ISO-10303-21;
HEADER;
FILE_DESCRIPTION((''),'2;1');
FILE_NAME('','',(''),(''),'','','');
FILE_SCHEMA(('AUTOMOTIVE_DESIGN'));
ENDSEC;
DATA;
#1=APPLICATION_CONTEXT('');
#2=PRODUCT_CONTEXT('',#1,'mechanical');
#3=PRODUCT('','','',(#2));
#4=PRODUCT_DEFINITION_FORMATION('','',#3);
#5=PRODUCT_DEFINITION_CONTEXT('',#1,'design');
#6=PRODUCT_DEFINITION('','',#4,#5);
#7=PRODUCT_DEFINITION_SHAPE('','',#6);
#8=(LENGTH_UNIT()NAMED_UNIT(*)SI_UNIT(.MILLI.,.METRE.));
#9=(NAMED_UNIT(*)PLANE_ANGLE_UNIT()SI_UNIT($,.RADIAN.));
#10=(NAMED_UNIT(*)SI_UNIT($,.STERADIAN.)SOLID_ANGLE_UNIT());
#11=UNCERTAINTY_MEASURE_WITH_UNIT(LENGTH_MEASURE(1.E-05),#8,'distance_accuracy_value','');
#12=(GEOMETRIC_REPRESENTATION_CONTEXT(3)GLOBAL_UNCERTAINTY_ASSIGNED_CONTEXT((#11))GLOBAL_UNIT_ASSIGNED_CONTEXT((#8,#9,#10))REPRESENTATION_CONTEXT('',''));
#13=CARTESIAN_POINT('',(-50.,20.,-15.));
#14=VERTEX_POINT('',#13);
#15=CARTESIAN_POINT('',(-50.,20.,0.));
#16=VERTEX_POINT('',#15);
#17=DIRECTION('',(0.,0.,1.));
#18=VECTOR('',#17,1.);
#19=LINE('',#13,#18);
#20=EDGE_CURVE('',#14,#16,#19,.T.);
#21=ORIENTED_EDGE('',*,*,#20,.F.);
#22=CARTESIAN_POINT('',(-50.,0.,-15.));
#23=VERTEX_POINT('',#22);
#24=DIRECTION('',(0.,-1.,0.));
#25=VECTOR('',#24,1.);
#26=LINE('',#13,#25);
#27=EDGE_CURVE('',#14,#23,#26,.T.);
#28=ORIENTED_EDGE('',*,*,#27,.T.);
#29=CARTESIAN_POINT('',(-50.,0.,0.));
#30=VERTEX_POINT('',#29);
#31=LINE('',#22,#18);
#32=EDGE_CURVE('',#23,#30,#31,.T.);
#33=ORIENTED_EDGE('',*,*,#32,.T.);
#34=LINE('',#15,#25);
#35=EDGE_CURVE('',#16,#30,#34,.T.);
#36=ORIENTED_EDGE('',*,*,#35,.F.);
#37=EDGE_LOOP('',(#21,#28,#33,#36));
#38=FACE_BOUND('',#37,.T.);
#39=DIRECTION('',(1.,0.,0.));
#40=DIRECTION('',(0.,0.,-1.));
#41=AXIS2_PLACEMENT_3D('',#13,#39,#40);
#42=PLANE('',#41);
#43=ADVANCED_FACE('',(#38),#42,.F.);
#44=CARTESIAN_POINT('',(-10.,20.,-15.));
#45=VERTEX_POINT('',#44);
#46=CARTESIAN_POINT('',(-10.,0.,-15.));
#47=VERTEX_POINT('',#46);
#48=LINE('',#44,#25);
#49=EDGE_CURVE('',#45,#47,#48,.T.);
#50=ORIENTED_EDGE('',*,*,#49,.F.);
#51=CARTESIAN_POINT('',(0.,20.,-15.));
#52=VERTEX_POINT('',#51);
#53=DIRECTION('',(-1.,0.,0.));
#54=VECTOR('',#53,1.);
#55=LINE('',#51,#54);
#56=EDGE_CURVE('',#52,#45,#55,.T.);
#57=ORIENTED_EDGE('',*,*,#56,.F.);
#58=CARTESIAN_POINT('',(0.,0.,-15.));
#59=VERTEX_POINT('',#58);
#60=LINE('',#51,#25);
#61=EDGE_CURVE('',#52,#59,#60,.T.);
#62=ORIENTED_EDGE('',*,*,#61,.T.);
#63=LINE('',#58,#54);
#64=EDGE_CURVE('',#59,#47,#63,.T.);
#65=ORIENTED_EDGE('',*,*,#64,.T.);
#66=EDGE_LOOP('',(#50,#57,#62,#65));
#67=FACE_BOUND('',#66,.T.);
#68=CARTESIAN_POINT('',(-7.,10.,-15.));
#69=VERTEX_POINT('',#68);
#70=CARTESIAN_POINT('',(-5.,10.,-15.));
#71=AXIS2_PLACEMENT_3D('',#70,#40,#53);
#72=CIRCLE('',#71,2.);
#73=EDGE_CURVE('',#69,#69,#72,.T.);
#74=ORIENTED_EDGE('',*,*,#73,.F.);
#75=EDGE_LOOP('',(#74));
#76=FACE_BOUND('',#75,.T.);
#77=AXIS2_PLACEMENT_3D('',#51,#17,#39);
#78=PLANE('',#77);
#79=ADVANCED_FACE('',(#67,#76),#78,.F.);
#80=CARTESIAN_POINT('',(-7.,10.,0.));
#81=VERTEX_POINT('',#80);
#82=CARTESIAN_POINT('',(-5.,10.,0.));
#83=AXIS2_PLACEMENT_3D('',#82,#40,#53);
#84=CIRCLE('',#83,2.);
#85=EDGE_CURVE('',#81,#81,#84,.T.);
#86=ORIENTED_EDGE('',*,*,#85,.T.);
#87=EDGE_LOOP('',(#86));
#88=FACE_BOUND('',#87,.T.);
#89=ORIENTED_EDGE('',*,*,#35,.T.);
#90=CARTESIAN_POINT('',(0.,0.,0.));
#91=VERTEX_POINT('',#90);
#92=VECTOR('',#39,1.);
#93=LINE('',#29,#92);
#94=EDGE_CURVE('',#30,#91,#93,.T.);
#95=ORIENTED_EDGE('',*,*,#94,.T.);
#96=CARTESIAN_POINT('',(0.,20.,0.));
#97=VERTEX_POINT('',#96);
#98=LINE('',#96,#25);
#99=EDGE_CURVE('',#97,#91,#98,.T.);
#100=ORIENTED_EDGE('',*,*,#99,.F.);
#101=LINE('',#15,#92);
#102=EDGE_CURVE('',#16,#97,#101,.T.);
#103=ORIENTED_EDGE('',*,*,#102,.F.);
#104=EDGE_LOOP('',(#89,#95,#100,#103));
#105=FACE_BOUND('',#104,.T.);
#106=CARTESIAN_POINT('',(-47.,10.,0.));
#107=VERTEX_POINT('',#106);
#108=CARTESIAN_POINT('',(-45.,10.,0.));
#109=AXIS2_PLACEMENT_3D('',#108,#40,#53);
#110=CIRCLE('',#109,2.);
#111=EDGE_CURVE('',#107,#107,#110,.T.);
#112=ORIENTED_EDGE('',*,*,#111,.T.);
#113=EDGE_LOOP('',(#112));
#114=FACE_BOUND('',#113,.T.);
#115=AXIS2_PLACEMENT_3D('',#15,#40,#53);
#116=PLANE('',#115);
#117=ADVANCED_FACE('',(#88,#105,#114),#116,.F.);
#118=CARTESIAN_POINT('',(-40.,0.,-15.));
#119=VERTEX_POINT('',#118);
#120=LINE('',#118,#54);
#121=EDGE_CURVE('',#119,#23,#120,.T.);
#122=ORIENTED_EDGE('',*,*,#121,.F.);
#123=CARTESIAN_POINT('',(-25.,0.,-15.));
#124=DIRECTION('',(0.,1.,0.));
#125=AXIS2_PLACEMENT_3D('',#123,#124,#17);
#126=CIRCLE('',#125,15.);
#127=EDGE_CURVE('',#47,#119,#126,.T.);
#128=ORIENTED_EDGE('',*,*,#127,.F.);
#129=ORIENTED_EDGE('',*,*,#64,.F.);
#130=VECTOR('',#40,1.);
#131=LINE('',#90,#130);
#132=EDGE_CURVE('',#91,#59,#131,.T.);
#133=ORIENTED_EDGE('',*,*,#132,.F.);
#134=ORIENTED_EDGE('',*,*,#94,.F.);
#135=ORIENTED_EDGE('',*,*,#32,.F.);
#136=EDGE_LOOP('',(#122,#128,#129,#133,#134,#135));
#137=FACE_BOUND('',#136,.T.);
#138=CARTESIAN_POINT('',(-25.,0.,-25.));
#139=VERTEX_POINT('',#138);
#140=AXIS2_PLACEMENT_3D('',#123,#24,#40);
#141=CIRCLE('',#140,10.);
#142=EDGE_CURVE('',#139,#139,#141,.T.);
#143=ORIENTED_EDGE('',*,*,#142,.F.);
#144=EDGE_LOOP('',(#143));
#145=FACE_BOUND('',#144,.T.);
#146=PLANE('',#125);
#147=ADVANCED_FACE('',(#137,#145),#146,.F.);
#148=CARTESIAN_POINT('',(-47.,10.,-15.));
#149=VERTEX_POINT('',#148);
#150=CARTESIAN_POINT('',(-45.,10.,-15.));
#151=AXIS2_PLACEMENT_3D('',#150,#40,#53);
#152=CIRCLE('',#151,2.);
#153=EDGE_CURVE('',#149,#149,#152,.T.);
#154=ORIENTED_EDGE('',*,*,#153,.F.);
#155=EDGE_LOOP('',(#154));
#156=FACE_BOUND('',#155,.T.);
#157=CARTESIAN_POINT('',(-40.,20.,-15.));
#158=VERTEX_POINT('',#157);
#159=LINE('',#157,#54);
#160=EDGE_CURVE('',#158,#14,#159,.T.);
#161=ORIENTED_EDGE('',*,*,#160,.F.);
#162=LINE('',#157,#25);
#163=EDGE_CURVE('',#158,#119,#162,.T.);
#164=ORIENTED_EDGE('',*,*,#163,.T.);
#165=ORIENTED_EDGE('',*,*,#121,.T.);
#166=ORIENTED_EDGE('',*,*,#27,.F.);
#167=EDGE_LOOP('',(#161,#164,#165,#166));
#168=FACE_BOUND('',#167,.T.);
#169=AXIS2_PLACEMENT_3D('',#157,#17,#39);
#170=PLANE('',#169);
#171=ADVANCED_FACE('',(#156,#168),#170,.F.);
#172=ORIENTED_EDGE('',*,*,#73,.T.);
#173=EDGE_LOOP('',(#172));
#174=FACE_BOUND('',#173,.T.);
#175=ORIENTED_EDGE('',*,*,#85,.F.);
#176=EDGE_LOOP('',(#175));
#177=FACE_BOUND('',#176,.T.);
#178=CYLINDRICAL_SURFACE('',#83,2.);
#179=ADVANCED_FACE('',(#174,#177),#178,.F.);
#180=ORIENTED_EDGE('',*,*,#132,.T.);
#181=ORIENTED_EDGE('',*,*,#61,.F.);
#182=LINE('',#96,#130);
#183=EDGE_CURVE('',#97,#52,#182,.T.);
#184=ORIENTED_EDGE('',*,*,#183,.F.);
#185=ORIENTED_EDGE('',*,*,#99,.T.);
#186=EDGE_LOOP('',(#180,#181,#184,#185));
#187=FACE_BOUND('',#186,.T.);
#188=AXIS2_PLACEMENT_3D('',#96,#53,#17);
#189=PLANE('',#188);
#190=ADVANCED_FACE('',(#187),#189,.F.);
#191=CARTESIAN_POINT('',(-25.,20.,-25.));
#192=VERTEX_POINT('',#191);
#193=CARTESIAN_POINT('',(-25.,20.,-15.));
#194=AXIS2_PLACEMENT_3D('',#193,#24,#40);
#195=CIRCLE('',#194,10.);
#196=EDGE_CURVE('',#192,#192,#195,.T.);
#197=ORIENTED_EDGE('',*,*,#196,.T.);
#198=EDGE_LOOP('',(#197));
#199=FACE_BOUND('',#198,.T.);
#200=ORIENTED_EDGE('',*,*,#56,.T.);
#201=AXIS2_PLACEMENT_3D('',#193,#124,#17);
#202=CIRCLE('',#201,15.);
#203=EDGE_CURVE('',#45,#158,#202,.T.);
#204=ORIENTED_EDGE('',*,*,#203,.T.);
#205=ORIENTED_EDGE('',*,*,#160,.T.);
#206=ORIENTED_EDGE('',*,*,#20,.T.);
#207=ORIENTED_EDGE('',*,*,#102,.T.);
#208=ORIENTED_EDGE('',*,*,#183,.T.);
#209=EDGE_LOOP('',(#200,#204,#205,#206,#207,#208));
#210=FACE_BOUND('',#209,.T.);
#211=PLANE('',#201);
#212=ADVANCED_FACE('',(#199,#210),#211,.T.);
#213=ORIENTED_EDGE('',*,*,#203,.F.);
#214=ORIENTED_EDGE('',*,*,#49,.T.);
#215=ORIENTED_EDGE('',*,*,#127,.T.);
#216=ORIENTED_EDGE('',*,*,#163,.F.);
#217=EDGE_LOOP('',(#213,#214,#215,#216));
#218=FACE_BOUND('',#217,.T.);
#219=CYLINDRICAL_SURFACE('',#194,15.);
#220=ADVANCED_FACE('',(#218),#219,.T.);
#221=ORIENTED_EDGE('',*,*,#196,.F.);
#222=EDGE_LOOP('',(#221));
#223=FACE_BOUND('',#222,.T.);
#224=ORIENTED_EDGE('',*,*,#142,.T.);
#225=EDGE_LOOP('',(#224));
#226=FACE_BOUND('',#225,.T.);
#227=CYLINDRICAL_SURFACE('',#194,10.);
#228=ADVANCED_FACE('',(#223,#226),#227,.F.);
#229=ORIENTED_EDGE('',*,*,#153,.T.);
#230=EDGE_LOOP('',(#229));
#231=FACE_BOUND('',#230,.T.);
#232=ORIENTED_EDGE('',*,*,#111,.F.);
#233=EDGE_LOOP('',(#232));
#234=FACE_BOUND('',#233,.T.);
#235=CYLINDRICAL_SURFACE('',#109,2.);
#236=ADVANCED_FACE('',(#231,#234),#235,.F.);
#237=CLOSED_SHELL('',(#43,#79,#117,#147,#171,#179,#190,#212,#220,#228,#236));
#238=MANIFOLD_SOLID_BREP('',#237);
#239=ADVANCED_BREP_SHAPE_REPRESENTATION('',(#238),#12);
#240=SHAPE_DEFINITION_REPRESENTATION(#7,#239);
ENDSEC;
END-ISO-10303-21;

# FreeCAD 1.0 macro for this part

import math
import FreeCAD as App
import Part
import Sketcher
Q = App.Units.Quantity

doc = App.newDocument("Part")
body = doc.addObject("PartDesign::Body", "Body")

sketch1 = body.newObject("Sketcher::SketchObject", "Sketch")
sketch1.AttachmentSupport = (doc.getObject("XZ_Plane"), [""])
sketch1.MapMode = "FlatFace"
sketch1.addGeometry([
    Part.LineSegment(App.Vector(-50, 0, 0), App.Vector(0, 0, 0)),
    Part.LineSegment(App.Vector(0, 0, 0), App.Vector(0, -15, 0)),
    Part.LineSegment(App.Vector(0, -15, 0), App.Vector(-10, -15, 0)),
    Part.ArcOfCircle(Part.Circle(App.Vector(-25, -15, 0), App.Vector(0, 0, 1), 15), math.radians(180), math.radians(360)),
    Part.LineSegment(App.Vector(-40, -15, 0), App.Vector(-50, -15, 0)),
    Part.LineSegment(App.Vector(-50, -15, 0), App.Vector(-50, 0, 0)),
], False)
sketch1.addConstraint([
    Sketcher.Constraint("Coincident", 0, 2, 1, 1),
    Sketcher.Constraint("Coincident", 1, 2, 2, 1),
    Sketcher.Constraint("Coincident", 2, 2, 3, 2),
    Sketcher.Constraint("Coincident", 3, 1, 4, 1),
    Sketcher.Constraint("Coincident", 4, 2, 5, 1),
    Sketcher.Constraint("Coincident", 5, 2, 0, 1),
    Sketcher.Constraint("Horizontal", 0),
    Sketcher.Constraint("Vertical", 1),
    Sketcher.Constraint("Horizontal", 2),
    Sketcher.Constraint("Horizontal", 4),
    Sketcher.Constraint("Vertical", 5),
    Sketcher.Constraint("Coincident", 0, 2, -1, 1),
    Sketcher.Constraint("Horizontal", 3, 3, 1, 2),
    Sketcher.Constraint("Horizontal", 2, 2, 3, 1),
    Sketcher.Constraint("Equal", 2, 4),
    Sketcher.Constraint("Radius", 3, Q("15 mm")),
    Sketcher.Constraint("DistanceX", 0, 1, 0, 2, Q("50 mm")),
    Sketcher.Constraint("DistanceY", 1, 2, 1, 1, Q("15 mm")),
])
pad1 = body.newObject("PartDesign::Pad", "Pad")
pad1.Profile = sketch1
pad1.Length = 20
pad1.Reversed = True

sketch2 = body.newObject("Sketcher::SketchObject", "Sketch001")
sketch2.AttachmentSupport = (doc.getObject("XZ_Plane"), [""])
sketch2.MapMode = "FlatFace"
sketch2.addGeometry(Part.Circle(App.Vector(-25, -15, 0), App.Vector(0, 0, 1), 10), False)
sketch2.addConstraint([
    Sketcher.Constraint("Diameter", 0, Q("20 mm")),
    Sketcher.Constraint("DistanceX", 0, 3, -1, 1, Q("25 mm")),
    Sketcher.Constraint("DistanceY", 0, 3, -1, 1, Q("15 mm")),
])
pocket1 = body.newObject("PartDesign::Pocket", "Pocket")
pocket1.Profile = sketch2
pocket1.Type = "ThroughAll"

sketch3 = body.newObject("Sketcher::SketchObject", "Sketch002")
sketch3.AttachmentSupport = (doc.getObject("XY_Plane"), [""])
sketch3.MapMode = "FlatFace"
sketch3.AttachmentOffset = App.Placement(App.Vector(0, 0, -15), App.Rotation())
sketch3.addGeometry([
    Part.Circle(App.Vector(-45, 10, 0), App.Vector(0, 0, 1), 2),
    Part.Circle(App.Vector(-5, 10, 0), App.Vector(0, 0, 1), 2),
], False)
sketch3.addConstraint([
    Sketcher.Constraint("Equal", 0, 1),
    Sketcher.Constraint("Horizontal", 0, 3, 1, 3),
    Sketcher.Constraint("Diameter", 0, Q("4 mm")),
    Sketcher.Constraint("DistanceX", 0, 3, -1, 1, Q("45 mm")),
    Sketcher.Constraint("DistanceY", -1, 1, 0, 3, Q("10 mm")),
    Sketcher.Constraint("DistanceX", 1, 3, -1, 1, Q("5 mm")),
])
pocket2 = body.newObject("PartDesign::Pocket", "Pocket001")
pocket2.Profile = sketch3
pocket2.Type = "ThroughAll"
pocket2.Reversed = True

doc.recompute()
